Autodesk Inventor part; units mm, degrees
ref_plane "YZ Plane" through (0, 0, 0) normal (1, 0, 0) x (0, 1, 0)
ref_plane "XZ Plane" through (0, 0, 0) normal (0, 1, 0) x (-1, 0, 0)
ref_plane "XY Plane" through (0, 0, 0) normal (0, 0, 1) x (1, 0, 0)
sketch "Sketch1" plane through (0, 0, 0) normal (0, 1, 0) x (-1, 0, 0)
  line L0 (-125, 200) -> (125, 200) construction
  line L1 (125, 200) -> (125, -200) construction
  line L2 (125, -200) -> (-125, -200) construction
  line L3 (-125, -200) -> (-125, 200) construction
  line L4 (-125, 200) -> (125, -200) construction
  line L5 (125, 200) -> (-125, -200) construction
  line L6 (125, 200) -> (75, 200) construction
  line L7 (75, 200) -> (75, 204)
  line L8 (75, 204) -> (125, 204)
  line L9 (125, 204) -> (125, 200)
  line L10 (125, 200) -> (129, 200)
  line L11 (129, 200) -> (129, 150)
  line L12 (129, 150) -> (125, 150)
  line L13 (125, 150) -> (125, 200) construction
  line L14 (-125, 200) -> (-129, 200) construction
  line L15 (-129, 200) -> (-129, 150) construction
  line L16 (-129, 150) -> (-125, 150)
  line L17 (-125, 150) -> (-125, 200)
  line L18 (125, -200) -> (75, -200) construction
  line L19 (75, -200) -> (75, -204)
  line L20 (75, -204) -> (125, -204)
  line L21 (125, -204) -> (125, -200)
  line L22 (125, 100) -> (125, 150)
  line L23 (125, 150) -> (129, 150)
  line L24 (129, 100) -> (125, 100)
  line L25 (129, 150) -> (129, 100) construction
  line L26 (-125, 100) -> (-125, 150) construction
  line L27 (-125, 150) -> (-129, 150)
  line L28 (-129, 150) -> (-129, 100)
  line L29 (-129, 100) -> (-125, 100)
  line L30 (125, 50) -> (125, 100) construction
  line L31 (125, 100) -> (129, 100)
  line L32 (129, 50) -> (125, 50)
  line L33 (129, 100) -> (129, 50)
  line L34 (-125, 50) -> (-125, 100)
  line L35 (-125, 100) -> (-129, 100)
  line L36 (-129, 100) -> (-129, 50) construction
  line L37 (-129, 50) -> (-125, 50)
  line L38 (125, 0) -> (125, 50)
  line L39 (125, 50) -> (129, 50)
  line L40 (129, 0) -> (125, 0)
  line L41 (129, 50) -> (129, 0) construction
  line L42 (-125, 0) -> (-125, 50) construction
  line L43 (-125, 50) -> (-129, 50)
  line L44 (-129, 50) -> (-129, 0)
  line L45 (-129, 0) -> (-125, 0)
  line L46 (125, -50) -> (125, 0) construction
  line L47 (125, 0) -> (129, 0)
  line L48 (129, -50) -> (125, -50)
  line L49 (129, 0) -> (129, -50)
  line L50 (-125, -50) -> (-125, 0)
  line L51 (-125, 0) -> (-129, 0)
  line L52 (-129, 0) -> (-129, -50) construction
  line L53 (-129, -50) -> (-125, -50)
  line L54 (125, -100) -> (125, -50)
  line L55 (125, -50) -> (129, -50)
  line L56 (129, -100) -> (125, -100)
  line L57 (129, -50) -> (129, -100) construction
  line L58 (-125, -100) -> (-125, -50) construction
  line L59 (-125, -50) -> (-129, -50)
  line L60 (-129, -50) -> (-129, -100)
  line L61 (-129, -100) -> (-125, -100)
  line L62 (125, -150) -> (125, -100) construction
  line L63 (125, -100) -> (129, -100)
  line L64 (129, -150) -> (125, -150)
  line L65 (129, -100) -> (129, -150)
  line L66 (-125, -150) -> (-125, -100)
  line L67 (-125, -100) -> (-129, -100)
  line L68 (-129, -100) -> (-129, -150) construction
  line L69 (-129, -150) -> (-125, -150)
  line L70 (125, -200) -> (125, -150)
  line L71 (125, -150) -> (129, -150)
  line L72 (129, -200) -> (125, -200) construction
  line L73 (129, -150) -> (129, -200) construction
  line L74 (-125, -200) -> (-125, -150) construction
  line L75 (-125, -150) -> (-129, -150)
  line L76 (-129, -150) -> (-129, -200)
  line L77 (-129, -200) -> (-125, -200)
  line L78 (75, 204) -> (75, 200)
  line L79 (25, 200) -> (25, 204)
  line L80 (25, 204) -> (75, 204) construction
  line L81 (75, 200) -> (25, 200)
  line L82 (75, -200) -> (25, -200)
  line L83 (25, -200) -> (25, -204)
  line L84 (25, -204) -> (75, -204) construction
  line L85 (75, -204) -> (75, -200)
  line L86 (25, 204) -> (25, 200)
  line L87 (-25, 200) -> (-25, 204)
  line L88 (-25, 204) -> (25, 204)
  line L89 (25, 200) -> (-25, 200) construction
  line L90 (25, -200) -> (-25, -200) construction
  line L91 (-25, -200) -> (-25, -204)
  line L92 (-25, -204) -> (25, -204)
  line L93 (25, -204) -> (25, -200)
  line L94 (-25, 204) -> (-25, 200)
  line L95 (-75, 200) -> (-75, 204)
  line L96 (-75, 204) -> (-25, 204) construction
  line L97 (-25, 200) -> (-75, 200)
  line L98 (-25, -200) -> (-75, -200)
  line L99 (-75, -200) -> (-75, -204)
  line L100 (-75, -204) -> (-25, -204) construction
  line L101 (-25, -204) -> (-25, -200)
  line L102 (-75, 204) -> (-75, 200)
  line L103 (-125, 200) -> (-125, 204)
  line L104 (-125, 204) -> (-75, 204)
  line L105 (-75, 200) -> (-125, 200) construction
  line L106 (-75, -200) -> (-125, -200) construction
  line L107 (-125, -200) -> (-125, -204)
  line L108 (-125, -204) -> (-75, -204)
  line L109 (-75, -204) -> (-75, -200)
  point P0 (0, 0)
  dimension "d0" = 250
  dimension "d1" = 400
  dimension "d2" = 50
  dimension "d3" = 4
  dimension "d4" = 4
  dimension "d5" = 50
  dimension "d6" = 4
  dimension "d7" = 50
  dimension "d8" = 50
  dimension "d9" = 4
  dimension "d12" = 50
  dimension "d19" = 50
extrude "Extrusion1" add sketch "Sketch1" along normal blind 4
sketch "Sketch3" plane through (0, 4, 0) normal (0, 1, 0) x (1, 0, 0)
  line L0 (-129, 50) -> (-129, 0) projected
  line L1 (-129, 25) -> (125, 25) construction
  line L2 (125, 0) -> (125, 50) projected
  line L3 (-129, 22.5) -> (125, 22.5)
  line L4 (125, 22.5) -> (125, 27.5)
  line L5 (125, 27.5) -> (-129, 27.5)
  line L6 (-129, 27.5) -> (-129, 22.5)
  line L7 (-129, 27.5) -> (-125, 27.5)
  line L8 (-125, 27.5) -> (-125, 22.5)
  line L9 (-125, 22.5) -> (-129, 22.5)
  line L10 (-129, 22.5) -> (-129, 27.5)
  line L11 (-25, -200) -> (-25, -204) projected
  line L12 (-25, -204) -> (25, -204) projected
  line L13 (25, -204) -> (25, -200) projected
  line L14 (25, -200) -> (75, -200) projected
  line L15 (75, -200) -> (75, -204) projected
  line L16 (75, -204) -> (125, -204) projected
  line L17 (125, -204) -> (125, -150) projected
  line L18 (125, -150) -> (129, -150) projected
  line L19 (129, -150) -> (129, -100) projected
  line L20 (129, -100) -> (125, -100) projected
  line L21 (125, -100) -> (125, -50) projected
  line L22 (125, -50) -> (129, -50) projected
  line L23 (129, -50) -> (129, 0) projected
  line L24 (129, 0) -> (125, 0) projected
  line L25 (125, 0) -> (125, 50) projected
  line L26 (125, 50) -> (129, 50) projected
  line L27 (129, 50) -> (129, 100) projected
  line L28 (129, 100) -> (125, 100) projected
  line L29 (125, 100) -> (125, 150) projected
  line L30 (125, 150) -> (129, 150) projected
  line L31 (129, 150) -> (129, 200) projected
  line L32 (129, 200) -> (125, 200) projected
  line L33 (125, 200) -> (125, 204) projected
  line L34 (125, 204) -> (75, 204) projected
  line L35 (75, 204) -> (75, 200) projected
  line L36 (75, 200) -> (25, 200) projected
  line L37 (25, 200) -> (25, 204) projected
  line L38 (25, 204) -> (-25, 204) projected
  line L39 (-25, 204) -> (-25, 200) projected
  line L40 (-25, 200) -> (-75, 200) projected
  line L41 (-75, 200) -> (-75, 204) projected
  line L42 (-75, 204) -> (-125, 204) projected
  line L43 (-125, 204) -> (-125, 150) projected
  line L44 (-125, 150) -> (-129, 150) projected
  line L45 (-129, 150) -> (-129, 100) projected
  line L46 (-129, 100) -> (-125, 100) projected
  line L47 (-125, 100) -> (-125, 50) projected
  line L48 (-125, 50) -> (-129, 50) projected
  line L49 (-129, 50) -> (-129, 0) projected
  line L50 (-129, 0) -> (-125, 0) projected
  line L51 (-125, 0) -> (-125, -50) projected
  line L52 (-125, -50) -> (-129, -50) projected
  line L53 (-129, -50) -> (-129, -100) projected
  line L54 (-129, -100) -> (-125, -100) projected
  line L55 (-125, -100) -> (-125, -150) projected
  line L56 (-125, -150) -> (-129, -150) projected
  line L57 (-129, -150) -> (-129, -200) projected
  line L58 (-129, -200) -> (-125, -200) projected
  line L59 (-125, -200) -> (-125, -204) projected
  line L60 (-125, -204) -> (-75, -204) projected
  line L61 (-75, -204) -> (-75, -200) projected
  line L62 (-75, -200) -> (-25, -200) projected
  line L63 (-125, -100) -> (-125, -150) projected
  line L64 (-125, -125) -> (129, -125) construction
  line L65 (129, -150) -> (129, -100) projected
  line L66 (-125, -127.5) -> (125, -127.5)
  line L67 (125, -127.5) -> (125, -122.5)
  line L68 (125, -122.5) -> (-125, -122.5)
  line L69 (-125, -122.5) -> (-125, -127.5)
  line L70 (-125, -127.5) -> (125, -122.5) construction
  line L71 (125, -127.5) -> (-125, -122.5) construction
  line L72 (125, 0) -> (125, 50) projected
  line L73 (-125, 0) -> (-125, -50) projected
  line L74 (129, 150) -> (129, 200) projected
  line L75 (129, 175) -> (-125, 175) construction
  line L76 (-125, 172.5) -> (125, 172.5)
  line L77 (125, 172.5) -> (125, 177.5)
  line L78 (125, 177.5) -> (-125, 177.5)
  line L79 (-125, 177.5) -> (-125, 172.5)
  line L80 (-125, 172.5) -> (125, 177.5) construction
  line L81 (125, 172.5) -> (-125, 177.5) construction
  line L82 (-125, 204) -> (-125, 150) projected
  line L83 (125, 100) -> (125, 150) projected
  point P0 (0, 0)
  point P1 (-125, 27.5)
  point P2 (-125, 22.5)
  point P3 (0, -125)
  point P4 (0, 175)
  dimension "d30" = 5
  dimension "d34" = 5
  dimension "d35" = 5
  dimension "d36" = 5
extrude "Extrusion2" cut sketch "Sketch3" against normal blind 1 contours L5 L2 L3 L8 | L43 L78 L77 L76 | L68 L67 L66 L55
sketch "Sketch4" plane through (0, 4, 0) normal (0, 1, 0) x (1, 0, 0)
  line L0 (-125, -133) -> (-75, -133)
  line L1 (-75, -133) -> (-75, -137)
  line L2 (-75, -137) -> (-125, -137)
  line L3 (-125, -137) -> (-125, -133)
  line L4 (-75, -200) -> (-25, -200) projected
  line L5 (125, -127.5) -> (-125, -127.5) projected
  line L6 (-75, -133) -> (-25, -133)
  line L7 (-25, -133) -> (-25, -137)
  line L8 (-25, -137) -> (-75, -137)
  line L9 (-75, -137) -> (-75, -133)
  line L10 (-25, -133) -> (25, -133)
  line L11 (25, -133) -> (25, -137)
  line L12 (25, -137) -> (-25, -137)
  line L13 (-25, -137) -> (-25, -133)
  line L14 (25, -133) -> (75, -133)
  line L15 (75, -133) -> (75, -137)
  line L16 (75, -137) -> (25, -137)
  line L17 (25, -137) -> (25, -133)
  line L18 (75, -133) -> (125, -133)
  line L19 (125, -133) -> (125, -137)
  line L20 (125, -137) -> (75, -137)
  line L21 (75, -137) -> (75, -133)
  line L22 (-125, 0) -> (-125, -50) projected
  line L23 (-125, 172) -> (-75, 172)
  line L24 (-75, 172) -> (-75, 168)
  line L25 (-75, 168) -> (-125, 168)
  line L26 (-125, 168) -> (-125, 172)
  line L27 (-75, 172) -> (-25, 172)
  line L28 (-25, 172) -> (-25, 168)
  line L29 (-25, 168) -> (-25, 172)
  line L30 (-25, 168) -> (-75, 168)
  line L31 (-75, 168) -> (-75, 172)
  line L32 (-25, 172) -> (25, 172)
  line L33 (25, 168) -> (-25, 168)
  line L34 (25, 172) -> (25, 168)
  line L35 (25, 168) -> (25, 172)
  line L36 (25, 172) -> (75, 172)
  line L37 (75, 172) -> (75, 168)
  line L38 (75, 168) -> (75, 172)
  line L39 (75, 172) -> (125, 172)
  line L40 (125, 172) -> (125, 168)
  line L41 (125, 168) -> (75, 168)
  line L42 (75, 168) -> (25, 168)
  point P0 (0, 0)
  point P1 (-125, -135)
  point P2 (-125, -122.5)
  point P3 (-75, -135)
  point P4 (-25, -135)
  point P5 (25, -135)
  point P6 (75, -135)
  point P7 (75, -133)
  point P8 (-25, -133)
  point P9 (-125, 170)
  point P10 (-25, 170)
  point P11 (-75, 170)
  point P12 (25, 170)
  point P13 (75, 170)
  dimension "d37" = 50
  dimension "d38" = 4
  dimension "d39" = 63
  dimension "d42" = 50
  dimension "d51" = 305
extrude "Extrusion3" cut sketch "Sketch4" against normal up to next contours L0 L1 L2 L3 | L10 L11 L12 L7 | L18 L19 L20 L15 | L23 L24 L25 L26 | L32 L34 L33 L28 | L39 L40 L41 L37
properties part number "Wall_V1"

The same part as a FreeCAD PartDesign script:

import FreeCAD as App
import Part
import Sketcher
from FreeCAD import Vector
Q = App.Units.Quantity


def add_polygon(sketch, points):
    """Adds a closed chain of lines whose ends are joined by coincident constraints."""
    first, n = sketch.GeometryCount, len(points)
    for a, b in zip(points, points[1:] + points[:1]):
        sketch.addGeometry(Part.LineSegment(App.Vector(*a, 0), App.Vector(*b, 0)), False)
    for i in range(n):
        sketch.addConstraint(Sketcher.Constraint("Coincident", first + i, 2, first + (i + 1) % n, 1))

doc = App.newDocument("Part")
body = doc.addObject("PartDesign::Body", "Body")

# Sketch on XZ plane
sketch1 = doc.addObject("Sketcher::SketchObject", "Sketch")
body.addObject(sketch1)
sketch1.AttachmentSupport = (doc.XZ_Plane, [""])
sketch1.MapMode = "FlatFace"
add_polygon(sketch1, [(-75, 204), (-75, 200), (-25, 200), (-25, 204), (25, 204), (25, 200), (75, 200), (75, 204), (125, 204), (125, 150), (129, 150), (129, 100), (125, 100), (125, 50), (129, 50), (129, 0), (125, 0), (125, -50), (129, -50), (129, -100), (125, -100), (125, -150), (129, -150), (129, -200), (125, -200), (125, -204), (75, -204), (75, -200), (25, -200), (25, -204), (-25, -204), (-25, -200), (-75, -200), (-75, -204), (-125, -204), (-125, -150), (-129, -150), (-129, -100), (-125, -100), (-125, -50), (-129, -50), (-129, 0), (-125, 0), (-125, 50), (-129, 50), (-129, 100), (-125, 100), (-125, 150), (-129, 150), (-129, 200), (-125, 200), (-125, 204)])  # lines 0-51
sketch1.addConstraint(Sketcher.Constraint("Vertical", 0))
sketch1.addConstraint(Sketcher.Constraint("Horizontal", 1))
sketch1.addConstraint(Sketcher.Constraint("Vertical", 2))
sketch1.addConstraint(Sketcher.Constraint("Horizontal", 3))
sketch1.addConstraint(Sketcher.Constraint("Vertical", 4))
sketch1.addConstraint(Sketcher.Constraint("Horizontal", 5))
sketch1.addConstraint(Sketcher.Constraint("Vertical", 6))
sketch1.addConstraint(Sketcher.Constraint("Horizontal", 7))
sketch1.addConstraint(Sketcher.Constraint("Vertical", 8))
sketch1.addConstraint(Sketcher.Constraint("Horizontal", 9))
sketch1.addConstraint(Sketcher.Constraint("Vertical", 10))
sketch1.addConstraint(Sketcher.Constraint("Horizontal", 11))
sketch1.addConstraint(Sketcher.Constraint("Vertical", 12))
sketch1.addConstraint(Sketcher.Constraint("Horizontal", 13))
sketch1.addConstraint(Sketcher.Constraint("Vertical", 14))
sketch1.addConstraint(Sketcher.Constraint("Horizontal", 15))
sketch1.addConstraint(Sketcher.Constraint("Vertical", 16))
sketch1.addConstraint(Sketcher.Constraint("Horizontal", 17))
sketch1.addConstraint(Sketcher.Constraint("Vertical", 18))
sketch1.addConstraint(Sketcher.Constraint("Horizontal", 19))
sketch1.addConstraint(Sketcher.Constraint("Vertical", 20))
sketch1.addConstraint(Sketcher.Constraint("Horizontal", 21))
sketch1.addConstraint(Sketcher.Constraint("Vertical", 22))
sketch1.addConstraint(Sketcher.Constraint("Horizontal", 23))
sketch1.addConstraint(Sketcher.Constraint("Vertical", 24))
sketch1.addConstraint(Sketcher.Constraint("Horizontal", 25))
sketch1.addConstraint(Sketcher.Constraint("Vertical", 26))
sketch1.addConstraint(Sketcher.Constraint("Horizontal", 27))
sketch1.addConstraint(Sketcher.Constraint("Vertical", 28))
sketch1.addConstraint(Sketcher.Constraint("Horizontal", 29))
sketch1.addConstraint(Sketcher.Constraint("Vertical", 30))
sketch1.addConstraint(Sketcher.Constraint("Horizontal", 31))
sketch1.addConstraint(Sketcher.Constraint("Vertical", 32))
sketch1.addConstraint(Sketcher.Constraint("Horizontal", 33))
sketch1.addConstraint(Sketcher.Constraint("Vertical", 34))
sketch1.addConstraint(Sketcher.Constraint("Horizontal", 35))
sketch1.addConstraint(Sketcher.Constraint("Vertical", 36))
sketch1.addConstraint(Sketcher.Constraint("Horizontal", 37))
sketch1.addConstraint(Sketcher.Constraint("Vertical", 38))
sketch1.addConstraint(Sketcher.Constraint("Horizontal", 39))
sketch1.addConstraint(Sketcher.Constraint("Vertical", 40))
sketch1.addConstraint(Sketcher.Constraint("Horizontal", 41))
sketch1.addConstraint(Sketcher.Constraint("Vertical", 42))
sketch1.addConstraint(Sketcher.Constraint("Horizontal", 43))
sketch1.addConstraint(Sketcher.Constraint("Vertical", 44))
sketch1.addConstraint(Sketcher.Constraint("Horizontal", 45))
sketch1.addConstraint(Sketcher.Constraint("Vertical", 46))
sketch1.addConstraint(Sketcher.Constraint("Horizontal", 47))
sketch1.addConstraint(Sketcher.Constraint("Vertical", 48))
sketch1.addConstraint(Sketcher.Constraint("Horizontal", 49))
sketch1.addConstraint(Sketcher.Constraint("Vertical", 50))
sketch1.addConstraint(Sketcher.Constraint("Horizontal", 51))
sketch1.addConstraint(Sketcher.Constraint("Symmetric", 0, 2, 26, 2, -1, 1))
sketch1.addConstraint(Sketcher.Constraint("Symmetric", 2, 2, 28, 2, -1, 1))
sketch1.addConstraint(Sketcher.Constraint("Symmetric", 4, 2, 30, 2, -1, 1))
sketch1.addConstraint(Sketcher.Constraint("Symmetric", 6, 2, 32, 2, -1, 1))
sketch1.addConstraint(Sketcher.Constraint("Symmetric", 8, 2, 34, 2, -1, 1))
sketch1.addConstraint(Sketcher.Constraint("Symmetric", 10, 2, 36, 2, -1, 1))
sketch1.addConstraint(Sketcher.Constraint("Symmetric", 12, 2, 38, 2, -1, 1))
sketch1.addConstraint(Sketcher.Constraint("Symmetric", 14, 2, 40, 2, -1, 1))
sketch1.addConstraint(Sketcher.Constraint("Symmetric", 16, 2, 42, 2, -1, 1))
sketch1.addConstraint(Sketcher.Constraint("Symmetric", 18, 2, 44, 2, -1, 1))
sketch1.addConstraint(Sketcher.Constraint("Symmetric", 20, 2, 46, 2, -1, 1))
sketch1.addConstraint(Sketcher.Constraint("Symmetric", 22, 2, 48, 2, -1, 1))
sketch1.addConstraint(Sketcher.Constraint("Symmetric", 24, 2, 50, 2, -1, 1))
sketch1.addConstraint(Sketcher.Constraint("Symmetric", 1, 2, 4, 2, -2))
sketch1.addConstraint(Sketcher.Constraint("Symmetric", 25, 2, 32, 2, -2))
sketch1.addConstraint(Sketcher.Constraint("Symmetric", 20, 2, 34, 2, -2))
sketch1.addConstraint(Sketcher.Constraint("Symmetric", 18, 2, 36, 2, -2))
sketch1.addConstraint(Sketcher.Constraint("Symmetric", 16, 2, 38, 2, -2))
sketch1.addConstraint(Sketcher.Constraint("PointOnObject", 14, 2, -1))
sketch1.addConstraint(Sketcher.Constraint("Horizontal", 3, 2, 6, 2))
sketch1.addConstraint(Sketcher.Constraint("Horizontal", 23, 2, 26, 2))
sketch1.addConstraint(Sketcher.Constraint("Vertical", 8, 2, 11, 2))
sketch1.addConstraint(Sketcher.Constraint("Vertical", 10, 2, 13, 2))
sketch1.addConstraint(Sketcher.Constraint("Vertical", 18, 2, 21, 2))
sketch1.addConstraint(Sketcher.Constraint("Vertical", 20, 2, 23, 2))
sketch1.addConstraint(Sketcher.Constraint("Equal", 1, 3))
sketch1.addConstraint(Sketcher.Constraint("Equal", 5, 7))
sketch1.addConstraint(Sketcher.Constraint("Equal", 49, 0))
sketch1.addConstraint(Sketcher.Constraint("Equal", 51, 10))
sketch1.addConstraint(Sketcher.Constraint("Equal", 10, 12))
sketch1.addConstraint(Sketcher.Constraint("Equal", 12, 14))
sketch1.addConstraint(Sketcher.Constraint("Equal", 20, 22))
sketch1.addConstraint(Sketcher.Constraint("DistanceX", 1, 1, 1, 2, Q("50 mm")))
sketch1.addConstraint(Sketcher.Constraint("DistanceX", 9, 1, 9, 2, Q("4 mm")))
pad1 = doc.addObject("PartDesign::Pad", "Pad")
body.addObject(pad1)
pad1.Profile = sketch1
pad1.Length = 4
pad1.Reversed = True

# Sketch on XZ plane
sketch2 = doc.addObject("Sketcher::SketchObject", "Sketch001")
body.addObject(sketch2)
sketch2.AttachmentSupport = (doc.XZ_Plane, [""])
sketch2.MapMode = "FlatFace"
sketch2.AttachmentOffset = App.Placement(Vector(0, 0, -4), App.Rotation())
add_polygon(sketch2, [(125, -28), (-125, -28), (-125, -22), (125, -22)])  # lines 0-3
add_polygon(sketch2, [(-125, -178), (-125, -172), (125, -172), (125, -178)])  # lines 4-7
add_polygon(sketch2, [(125, 122), (-125, 122), (-125, 128), (125, 128)])  # lines 8-11
sketch2.addConstraint(Sketcher.Constraint("Horizontal", 0))
sketch2.addConstraint(Sketcher.Constraint("Vertical", 1))
sketch2.addConstraint(Sketcher.Constraint("Horizontal", 2))
sketch2.addConstraint(Sketcher.Constraint("Vertical", 3))
sketch2.addConstraint(Sketcher.Constraint("Vertical", 4))
sketch2.addConstraint(Sketcher.Constraint("Horizontal", 5))
sketch2.addConstraint(Sketcher.Constraint("Vertical", 6))
sketch2.addConstraint(Sketcher.Constraint("Horizontal", 7))
sketch2.addConstraint(Sketcher.Constraint("Horizontal", 8))
sketch2.addConstraint(Sketcher.Constraint("Vertical", 9))
sketch2.addConstraint(Sketcher.Constraint("Horizontal", 10))
sketch2.addConstraint(Sketcher.Constraint("Vertical", 11))
sketch2.addConstraint(Sketcher.Constraint("Vertical", 1, 2, 4, 2))
sketch2.addConstraint(Sketcher.Constraint("Vertical", 3, 2, 5, 2))
sketch2.addConstraint(Sketcher.Constraint("Vertical", 7, 2, 8, 2))
sketch2.addConstraint(Sketcher.Constraint("Vertical", 6, 2, 10, 2))
sketch2.addConstraint(Sketcher.Constraint("Equal", 3, 4))
sketch2.addConstraint(Sketcher.Constraint("Equal", 6, 9))
sketch2.addConstraint(Sketcher.Constraint("DistanceY", 1, 1, 1, 2, Q("5 mm")))
sketch2.addConstraint(Sketcher.Constraint("DistanceX", 0, 2, 0, 1, Q("250 mm")))
sketch2.addConstraint(Sketcher.Constraint("DistanceX", 0, 2, -1, 1, Q("125 mm")))
sketch2.addConstraint(Sketcher.Constraint("DistanceY", 4, 2, 0, 2, Q("145 mm")))
sketch2.addConstraint(Sketcher.Constraint("DistanceY", 1, 2, 8, 2, Q("145 mm")))
sketch2.addConstraint(Sketcher.Constraint("DistanceY", 0, 2, -1, 1, Q("27.5 mm")))
pocket1 = doc.addObject("PartDesign::Pocket", "Pocket")
body.addObject(pocket1)
pocket1.Profile = sketch2
pocket1.Length = 1
pocket1.Reversed = True

# Sketch on XZ plane
sketch3 = doc.addObject("Sketcher::SketchObject", "Sketch002")
body.addObject(sketch3)
sketch3.AttachmentSupport = (doc.XZ_Plane, [""])
sketch3.MapMode = "FlatFace"
sketch3.AttachmentOffset = App.Placement(Vector(0, 0, -4), App.Rotation())
add_polygon(sketch3, [(-75, 133), (-125, 133), (-125, 137), (-75, 137)])  # lines 0-3
add_polygon(sketch3, [(25, 133), (-25, 133), (-25, 137), (25, 137)])  # lines 4-7
add_polygon(sketch3, [(125, 133), (75, 133), (75, 137), (125, 137)])  # lines 8-11
add_polygon(sketch3, [(-75, -172), (-125, -172), (-125, -168), (-75, -168)])  # lines 12-15
add_polygon(sketch3, [(25, -172), (-25, -172), (-25, -168), (25, -168)])  # lines 16-19
add_polygon(sketch3, [(125, -172), (75, -172), (75, -168), (125, -168)])  # lines 20-23
sketch3.addConstraint(Sketcher.Constraint("Horizontal", 0))
sketch3.addConstraint(Sketcher.Constraint("Vertical", 1))
sketch3.addConstraint(Sketcher.Constraint("Horizontal", 2))
sketch3.addConstraint(Sketcher.Constraint("Vertical", 3))
sketch3.addConstraint(Sketcher.Constraint("Horizontal", 4))
sketch3.addConstraint(Sketcher.Constraint("Vertical", 5))
sketch3.addConstraint(Sketcher.Constraint("Horizontal", 6))
sketch3.addConstraint(Sketcher.Constraint("Vertical", 7))
sketch3.addConstraint(Sketcher.Constraint("Horizontal", 8))
sketch3.addConstraint(Sketcher.Constraint("Vertical", 9))
sketch3.addConstraint(Sketcher.Constraint("Horizontal", 10))
sketch3.addConstraint(Sketcher.Constraint("Vertical", 11))
sketch3.addConstraint(Sketcher.Constraint("Horizontal", 12))
sketch3.addConstraint(Sketcher.Constraint("Vertical", 13))
sketch3.addConstraint(Sketcher.Constraint("Horizontal", 14))
sketch3.addConstraint(Sketcher.Constraint("Vertical", 15))
sketch3.addConstraint(Sketcher.Constraint("Horizontal", 16))
sketch3.addConstraint(Sketcher.Constraint("Vertical", 17))
sketch3.addConstraint(Sketcher.Constraint("Horizontal", 18))
sketch3.addConstraint(Sketcher.Constraint("Vertical", 19))
sketch3.addConstraint(Sketcher.Constraint("Horizontal", 20))
sketch3.addConstraint(Sketcher.Constraint("Vertical", 21))
sketch3.addConstraint(Sketcher.Constraint("Horizontal", 22))
sketch3.addConstraint(Sketcher.Constraint("Vertical", 23))
sketch3.addConstraint(Sketcher.Constraint("Symmetric", 3, 2, 8, 2, -2))
sketch3.addConstraint(Sketcher.Constraint("Symmetric", 1, 2, 10, 2, -2))
sketch3.addConstraint(Sketcher.Constraint("Symmetric", 15, 2, 20, 2, -2))
sketch3.addConstraint(Sketcher.Constraint("Symmetric", 13, 2, 22, 2, -2))
sketch3.addConstraint(Sketcher.Constraint("Horizontal", 3, 2, 4, 2))
sketch3.addConstraint(Sketcher.Constraint("Horizontal", 2, 2, 5, 2))
sketch3.addConstraint(Sketcher.Constraint("Horizontal", 15, 2, 16, 2))
sketch3.addConstraint(Sketcher.Constraint("Horizontal", 14, 2, 17, 2))
sketch3.addConstraint(Sketcher.Constraint("Vertical", 1, 2, 12, 2))
sketch3.addConstraint(Sketcher.Constraint("Vertical", 3, 2, 14, 2))
sketch3.addConstraint(Sketcher.Constraint("Vertical", 5, 2, 16, 2))
sketch3.addConstraint(Sketcher.Constraint("Vertical", 7, 2, 18, 2))
sketch3.addConstraint(Sketcher.Constraint("Equal", 2, 4))
sketch3.addConstraint(Sketcher.Constraint("Equal", 11, 13))
sketch3.addConstraint(Sketcher.Constraint("DistanceX", 0, 2, 0, 1, Q("50 mm")))
sketch3.addConstraint(Sketcher.Constraint("DistanceY", 1, 1, 1, 2, Q("4 mm")))
sketch3.addConstraint(Sketcher.Constraint("DistanceX", 3, 2, 4, 2, Q("50 mm")))
sketch3.addConstraint(Sketcher.Constraint("DistanceX", 7, 2, 8, 2, Q("50 mm")))
sketch3.addConstraint(Sketcher.Constraint("DistanceY", 12, 2, 0, 2, Q("305 mm")))
sketch3.addConstraint(Sketcher.Constraint("DistanceY", -1, 1, 0, 2, Q("133 mm")))
pocket2 = doc.addObject("PartDesign::Pocket", "Pocket001")
body.addObject(pocket2)
pocket2.Profile = sketch3
pocket2.Type = "UpToFirst"
pocket2.Reversed = True

doc.recompute()
